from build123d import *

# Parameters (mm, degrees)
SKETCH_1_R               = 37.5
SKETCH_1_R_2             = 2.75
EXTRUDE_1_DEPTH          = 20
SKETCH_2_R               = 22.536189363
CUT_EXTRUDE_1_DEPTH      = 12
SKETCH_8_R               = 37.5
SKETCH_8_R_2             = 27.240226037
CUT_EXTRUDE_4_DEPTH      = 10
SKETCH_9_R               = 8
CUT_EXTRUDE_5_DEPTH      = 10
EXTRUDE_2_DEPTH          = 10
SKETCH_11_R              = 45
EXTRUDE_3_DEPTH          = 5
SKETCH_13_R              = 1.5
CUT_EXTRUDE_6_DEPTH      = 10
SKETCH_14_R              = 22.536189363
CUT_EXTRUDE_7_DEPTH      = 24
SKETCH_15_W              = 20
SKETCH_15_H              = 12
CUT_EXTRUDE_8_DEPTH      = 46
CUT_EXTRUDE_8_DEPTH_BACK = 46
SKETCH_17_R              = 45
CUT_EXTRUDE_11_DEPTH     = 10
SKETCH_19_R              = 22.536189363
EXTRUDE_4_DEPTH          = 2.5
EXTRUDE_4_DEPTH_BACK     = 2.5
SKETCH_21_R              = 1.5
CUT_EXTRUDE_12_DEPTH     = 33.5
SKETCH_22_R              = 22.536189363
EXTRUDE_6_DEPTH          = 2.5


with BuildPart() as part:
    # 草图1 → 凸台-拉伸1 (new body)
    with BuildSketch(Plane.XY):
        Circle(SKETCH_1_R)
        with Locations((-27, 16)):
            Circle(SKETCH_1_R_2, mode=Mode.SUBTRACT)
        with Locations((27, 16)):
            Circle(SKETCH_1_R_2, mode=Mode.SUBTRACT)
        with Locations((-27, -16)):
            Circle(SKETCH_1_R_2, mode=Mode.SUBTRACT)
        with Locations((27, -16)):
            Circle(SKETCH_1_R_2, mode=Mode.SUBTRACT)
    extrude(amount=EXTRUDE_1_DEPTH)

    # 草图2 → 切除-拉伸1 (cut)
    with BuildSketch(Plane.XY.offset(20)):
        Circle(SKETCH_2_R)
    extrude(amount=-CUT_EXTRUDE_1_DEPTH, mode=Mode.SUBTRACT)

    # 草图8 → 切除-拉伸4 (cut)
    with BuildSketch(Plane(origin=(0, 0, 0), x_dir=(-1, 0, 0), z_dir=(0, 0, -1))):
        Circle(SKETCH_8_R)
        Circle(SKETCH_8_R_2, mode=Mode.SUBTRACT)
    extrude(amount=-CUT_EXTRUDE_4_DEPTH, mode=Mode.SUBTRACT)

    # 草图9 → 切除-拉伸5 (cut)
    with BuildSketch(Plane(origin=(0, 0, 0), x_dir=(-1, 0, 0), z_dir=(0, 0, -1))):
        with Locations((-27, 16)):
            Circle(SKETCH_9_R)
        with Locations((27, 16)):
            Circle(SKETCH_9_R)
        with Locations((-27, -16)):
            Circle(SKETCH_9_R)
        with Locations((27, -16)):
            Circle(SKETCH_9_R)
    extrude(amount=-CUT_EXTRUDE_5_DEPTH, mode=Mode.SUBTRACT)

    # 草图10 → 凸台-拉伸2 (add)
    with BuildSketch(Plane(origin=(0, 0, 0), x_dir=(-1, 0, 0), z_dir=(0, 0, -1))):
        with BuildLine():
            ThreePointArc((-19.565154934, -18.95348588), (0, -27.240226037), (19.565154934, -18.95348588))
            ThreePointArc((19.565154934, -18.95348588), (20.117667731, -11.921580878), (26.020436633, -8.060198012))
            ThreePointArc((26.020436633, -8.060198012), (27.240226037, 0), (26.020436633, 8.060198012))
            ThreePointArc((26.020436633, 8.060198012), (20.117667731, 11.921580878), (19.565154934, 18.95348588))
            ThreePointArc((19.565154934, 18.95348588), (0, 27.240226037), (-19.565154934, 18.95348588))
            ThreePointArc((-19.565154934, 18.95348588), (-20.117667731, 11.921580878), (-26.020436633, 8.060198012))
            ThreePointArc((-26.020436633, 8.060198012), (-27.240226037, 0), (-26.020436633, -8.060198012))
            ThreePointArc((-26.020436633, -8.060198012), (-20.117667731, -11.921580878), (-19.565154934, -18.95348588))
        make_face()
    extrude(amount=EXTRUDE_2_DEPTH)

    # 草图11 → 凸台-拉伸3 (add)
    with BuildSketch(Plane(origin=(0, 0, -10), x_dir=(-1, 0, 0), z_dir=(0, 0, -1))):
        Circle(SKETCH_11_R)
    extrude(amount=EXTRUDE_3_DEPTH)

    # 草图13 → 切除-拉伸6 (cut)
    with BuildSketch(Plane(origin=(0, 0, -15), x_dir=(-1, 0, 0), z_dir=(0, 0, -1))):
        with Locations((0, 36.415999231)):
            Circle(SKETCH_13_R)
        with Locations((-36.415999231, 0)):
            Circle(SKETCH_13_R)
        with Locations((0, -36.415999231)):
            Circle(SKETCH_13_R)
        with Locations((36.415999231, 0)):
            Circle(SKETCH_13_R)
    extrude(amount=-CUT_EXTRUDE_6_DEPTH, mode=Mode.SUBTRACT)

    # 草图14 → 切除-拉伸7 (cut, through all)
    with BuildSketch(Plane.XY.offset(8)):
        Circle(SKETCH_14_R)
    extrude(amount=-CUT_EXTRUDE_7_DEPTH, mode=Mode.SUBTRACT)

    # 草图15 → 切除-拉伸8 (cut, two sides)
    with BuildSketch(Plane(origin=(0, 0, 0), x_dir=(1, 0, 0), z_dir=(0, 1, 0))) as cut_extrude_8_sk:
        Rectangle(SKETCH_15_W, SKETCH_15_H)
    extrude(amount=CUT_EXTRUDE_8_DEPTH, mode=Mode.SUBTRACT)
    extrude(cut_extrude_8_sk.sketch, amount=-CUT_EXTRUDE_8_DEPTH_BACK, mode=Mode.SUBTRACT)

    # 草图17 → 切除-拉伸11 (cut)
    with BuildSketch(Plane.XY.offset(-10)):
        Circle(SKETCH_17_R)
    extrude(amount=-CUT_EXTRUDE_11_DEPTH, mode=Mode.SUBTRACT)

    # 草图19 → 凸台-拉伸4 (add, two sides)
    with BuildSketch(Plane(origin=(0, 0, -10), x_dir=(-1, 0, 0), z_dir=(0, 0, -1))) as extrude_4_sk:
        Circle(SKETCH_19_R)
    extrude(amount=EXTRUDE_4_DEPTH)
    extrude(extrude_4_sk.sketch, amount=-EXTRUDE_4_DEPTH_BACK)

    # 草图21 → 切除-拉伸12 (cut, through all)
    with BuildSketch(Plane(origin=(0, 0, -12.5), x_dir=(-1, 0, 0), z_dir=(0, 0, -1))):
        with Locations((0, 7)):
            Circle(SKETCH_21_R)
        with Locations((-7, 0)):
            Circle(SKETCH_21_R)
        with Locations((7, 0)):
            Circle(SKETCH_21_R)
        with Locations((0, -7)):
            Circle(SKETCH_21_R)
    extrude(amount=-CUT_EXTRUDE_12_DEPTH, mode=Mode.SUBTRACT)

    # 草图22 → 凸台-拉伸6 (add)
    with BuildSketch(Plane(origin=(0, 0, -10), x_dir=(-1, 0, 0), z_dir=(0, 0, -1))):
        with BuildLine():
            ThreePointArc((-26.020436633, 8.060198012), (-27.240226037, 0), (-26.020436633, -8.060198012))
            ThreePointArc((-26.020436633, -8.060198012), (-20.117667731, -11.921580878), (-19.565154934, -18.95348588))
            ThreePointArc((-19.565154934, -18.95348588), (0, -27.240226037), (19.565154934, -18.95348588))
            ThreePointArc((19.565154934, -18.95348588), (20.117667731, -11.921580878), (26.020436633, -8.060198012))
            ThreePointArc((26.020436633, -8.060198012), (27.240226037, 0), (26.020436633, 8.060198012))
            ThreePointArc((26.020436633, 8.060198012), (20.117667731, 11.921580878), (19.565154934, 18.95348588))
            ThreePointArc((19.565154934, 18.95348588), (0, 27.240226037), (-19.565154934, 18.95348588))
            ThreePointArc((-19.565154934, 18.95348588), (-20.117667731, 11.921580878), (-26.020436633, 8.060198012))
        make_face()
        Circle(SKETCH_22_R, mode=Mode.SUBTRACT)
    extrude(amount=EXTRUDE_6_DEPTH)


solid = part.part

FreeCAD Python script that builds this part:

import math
import FreeCAD as App
import Part
import Sketcher
from FreeCAD import Vector
Q = App.Units.Quantity

doc = App.newDocument("Part")
body = doc.addObject("PartDesign::Body", "Body")

sketch1 = body.newObject("Sketcher::SketchObject", "Sketch")
sketch1.AttachmentSupport = (doc.getObject("XY_Plane"), [""])
sketch1.MapMode = "FlatFace"
sketch1.addGeometry(Part.Circle(Vector(0, 0, 0), Vector(0, 0, 1), 37.5), False)
sketch1.addGeometry(Part.Circle(Vector(-27, -16, 0), Vector(0, 0, 1), 2.8), False)
sketch1.addGeometry(Part.Circle(Vector(27, -16, 0), Vector(0, 0, 1), 2.8), False)
sketch1.addGeometry(Part.Circle(Vector(-27, 16, 0), Vector(0, 0, 1), 2.8), False)
sketch1.addGeometry(Part.Circle(Vector(27, 16, 0), Vector(0, 0, 1), 2.8), False)
sketch1.addConstraint(Sketcher.Constraint("Coincident", 0, 3, -1, 1))
sketch1.addConstraint(Sketcher.Constraint("Equal", 1, 2))
sketch1.addConstraint(Sketcher.Constraint("Equal", 2, 3))
sketch1.addConstraint(Sketcher.Constraint("Equal", 3, 4))
sketch1.addConstraint(Sketcher.Constraint("Symmetric", 2, 3, 3, 3, -1, 1))
sketch1.addConstraint(Sketcher.Constraint("Symmetric", 1, 3, 4, 3, -1, 1))
sketch1.addConstraint(Sketcher.Constraint("Symmetric", 1, 3, 2, 3, -2))
sketch1.addConstraint(Sketcher.Constraint("Diameter", 0, Q("75 mm")))
sketch1.addConstraint(Sketcher.Constraint("Diameter", 1, Q("5.5 mm")))
sketch1.addConstraint(Sketcher.Constraint("DistanceX", 1, 3, -1, 1, Q("27 mm")))
sketch1.addConstraint(Sketcher.Constraint("DistanceY", 1, 3, -1, 1, Q("16 mm")))
pad1 = body.newObject("PartDesign::Pad", "Pad")
pad1.Profile = sketch1
pad1.Length = 20

sketch2 = body.newObject("Sketcher::SketchObject", "Sketch001")
sketch2.AttachmentSupport = (doc.getObject("XY_Plane"), [""])
sketch2.MapMode = "FlatFace"
sketch2.AttachmentOffset = App.Placement(Vector(0, 0, 20), App.Rotation())
sketch2.addGeometry(Part.Circle(Vector(0, 0, 0), Vector(0, 0, 1), 23), False)
sketch2.addConstraint(Sketcher.Constraint("Coincident", 0, 3, -1, 1))
sketch2.addConstraint(Sketcher.Constraint("Diameter", 0, Q("45.072379 mm")))
pocket1 = body.newObject("PartDesign::Pocket", "Pocket")
pocket1.Profile = sketch2
pocket1.Length = 12

sketch3 = body.newObject("Sketcher::SketchObject", "Sketch002")
sketch3.AttachmentSupport = (doc.getObject("XY_Plane"), [""])
sketch3.MapMode = "FlatFace"
sketch3.addGeometry(Part.Circle(Vector(0, 0, 0), Vector(0, 0, 1), 38), False)
sketch3.addGeometry(Part.Circle(Vector(0, 0, 0), Vector(0, 0, 1), 27), False)
sketch3.addConstraint(Sketcher.Constraint("Coincident", 0, 3, -1, 1))
sketch3.addConstraint(Sketcher.Constraint("Coincident", 1, 3, -1, 1))
sketch3.addConstraint(Sketcher.Constraint("Diameter", 0, Q("75 mm")))
sketch3.addConstraint(Sketcher.Constraint("Diameter", 1, Q("54.480452 mm")))
pocket2 = body.newObject("PartDesign::Pocket", "Pocket001")
pocket2.Profile = sketch3
pocket2.Length = 10
pocket2.Reversed = True

sketch4 = body.newObject("Sketcher::SketchObject", "Sketch003")
sketch4.AttachmentSupport = (doc.getObject("XY_Plane"), [""])
sketch4.MapMode = "FlatFace"
sketch4.addGeometry(Part.Circle(Vector(27, 16, 0), Vector(0, 0, 1), 8), False)
sketch4.addGeometry(Part.Circle(Vector(-27, 16, 0), Vector(0, 0, 1), 8), False)
sketch4.addGeometry(Part.Circle(Vector(27, -16, 0), Vector(0, 0, 1), 8), False)
sketch4.addGeometry(Part.Circle(Vector(-27, -16, 0), Vector(0, 0, 1), 8), False)
sketch4.addConstraint(Sketcher.Constraint("Equal", 0, 1))
sketch4.addConstraint(Sketcher.Constraint("Equal", 1, 2))
sketch4.addConstraint(Sketcher.Constraint("Equal", 2, 3))
sketch4.addConstraint(Sketcher.Constraint("Symmetric", 1, 3, 2, 3, -1, 1))
sketch4.addConstraint(Sketcher.Constraint("Symmetric", 0, 3, 3, 3, -1, 1))
sketch4.addConstraint(Sketcher.Constraint("Symmetric", 0, 3, 1, 3, -2))
sketch4.addConstraint(Sketcher.Constraint("Diameter", 0, Q("16 mm")))
sketch4.addConstraint(Sketcher.Constraint("DistanceX", -1, 1, 0, 3, Q("27 mm")))
sketch4.addConstraint(Sketcher.Constraint("DistanceY", -1, 1, 0, 3, Q("16 mm")))
pocket3 = body.newObject("PartDesign::Pocket", "Pocket002")
pocket3.Profile = sketch4
pocket3.Length = 10
pocket3.Reversed = True

sketch5 = body.newObject("Sketcher::SketchObject", "Sketch004")
sketch5.AttachmentSupport = (doc.getObject("XY_Plane"), [""])
sketch5.MapMode = "FlatFace"
sketch5.addGeometry(Part.ArcOfCircle(Part.Circle(Vector(0, 0, 0), Vector(0, 0, 1), 27), math.radians(-136), math.radians(-44)), False)
sketch5.addGeometry(Part.ArcOfCircle(Part.Circle(Vector(-27, -16, 0), Vector(0, 0, 1), 8), math.radians(-22), math.radians(83)), False)
sketch5.addGeometry(Part.ArcOfCircle(Part.Circle(Vector(0, 0, 0), Vector(0, 0, 1), 27), math.radians(163), math.radians(197)), False)
sketch5.addGeometry(Part.ArcOfCircle(Part.Circle(Vector(-27, 16, 0), Vector(0, 0, 1), 8), math.radians(-83), math.radians(22)), False)
sketch5.addGeometry(Part.ArcOfCircle(Part.Circle(Vector(0, 0, 0), Vector(0, 0, 1), 27), math.radians(44), math.radians(136)), False)
sketch5.addGeometry(Part.ArcOfCircle(Part.Circle(Vector(27, 16, 0), Vector(0, 0, 1), 8), math.radians(158), math.radians(263)), False)
sketch5.addGeometry(Part.ArcOfCircle(Part.Circle(Vector(0, 0, 0), Vector(0, 0, 1), 27), math.radians(-17), math.radians(17)), False)
sketch5.addGeometry(Part.ArcOfCircle(Part.Circle(Vector(27, -16, 0), Vector(0, 0, 1), 8), math.radians(97), math.radians(202)), False)
sketch5.addConstraint(Sketcher.Constraint("Coincident", 0, 1, 1, 1))
sketch5.addConstraint(Sketcher.Constraint("Coincident", 1, 2, 2, 2))
sketch5.addConstraint(Sketcher.Constraint("Coincident", 2, 1, 3, 1))
sketch5.addConstraint(Sketcher.Constraint("Coincident", 3, 2, 4, 2))
sketch5.addConstraint(Sketcher.Constraint("Coincident", 4, 1, 5, 1))
sketch5.addConstraint(Sketcher.Constraint("Coincident", 5, 2, 6, 2))
sketch5.addConstraint(Sketcher.Constraint("Coincident", 6, 1, 7, 1))
sketch5.addConstraint(Sketcher.Constraint("Coincident", 7, 2, 0, 2))
sketch5.addConstraint(Sketcher.Constraint("Coincident", 0, 3, -1, 1))
sketch5.addConstraint(Sketcher.Constraint("Coincident", 2, 3, -1, 1))
sketch5.addConstraint(Sketcher.Constraint("Coincident", 4, 3, -1, 1))
sketch5.addConstraint(Sketcher.Constraint("Coincident", 6, 3, -1, 1))
sketch5.addConstraint(Sketcher.Constraint("Equal", 0, 2))
sketch5.addConstraint(Sketcher.Constraint("Equal", 1, 3))
sketch5.addConstraint(Sketcher.Constraint("Equal", 2, 4))
sketch5.addConstraint(Sketcher.Constraint("Equal", 3, 5))
sketch5.addConstraint(Sketcher.Constraint("Equal", 4, 6))
sketch5.addConstraint(Sketcher.Constraint("Equal", 5, 7))
sketch5.addConstraint(Sketcher.Constraint("Symmetric", 1, 3, 5, 3, -1, 1))
sketch5.addConstraint(Sketcher.Constraint("Symmetric", 3, 3, 7, 3, -1, 1))
sketch5.addConstraint(Sketcher.Constraint("Symmetric", 3, 3, 5, 3, -2))
sketch5.addConstraint(Sketcher.Constraint("Radius", 1, Q("8 mm")))
sketch5.addConstraint(Sketcher.Constraint("DistanceX", 1, 3, -1, 1, Q("27 mm")))
sketch5.addConstraint(Sketcher.Constraint("DistanceY", 1, 3, -1, 1, Q("16 mm")))
sketch5.addConstraint(Sketcher.Constraint("Radius", 0, Q("27.240226 mm")))
pad2 = body.newObject("PartDesign::Pad", "Pad001")
pad2.Profile = sketch5
pad2.Length = 10
pad2.Reversed = True

sketch6 = body.newObject("Sketcher::SketchObject", "Sketch005")
sketch6.AttachmentSupport = (doc.getObject("XY_Plane"), [""])
sketch6.MapMode = "FlatFace"
sketch6.AttachmentOffset = App.Placement(Vector(0, 0, -10), App.Rotation())
sketch6.addGeometry(Part.Circle(Vector(0, 0, 0), Vector(0, 0, 1), 45), False)
sketch6.addConstraint(Sketcher.Constraint("Coincident", 0, 3, -1, 1))
sketch6.addConstraint(Sketcher.Constraint("Diameter", 0, Q("90 mm")))
pad3 = body.newObject("PartDesign::Pad", "Pad002")
pad3.Profile = sketch6
pad3.Length = 5
pad3.Reversed = True

sketch7 = body.newObject("Sketcher::SketchObject", "Sketch006")
sketch7.AttachmentSupport = (doc.getObject("XY_Plane"), [""])
sketch7.MapMode = "FlatFace"
sketch7.AttachmentOffset = App.Placement(Vector(0, 0, -15), App.Rotation())
sketch7.addGeometry(Part.Circle(Vector(0, 36.4, 0), Vector(0, 0, 1), 1.5), False)
sketch7.addGeometry(Part.Circle(Vector(36.4, 0, 0), Vector(0, 0, 1), 1.5), False)
sketch7.addGeometry(Part.Circle(Vector(0, -36.4, 0), Vector(0, 0, 1), 1.5), False)
sketch7.addGeometry(Part.Circle(Vector(-36.4, 0, 0), Vector(0, 0, 1), 1.5), False)
sketch7.addConstraint(Sketcher.Constraint("Equal", 0, 1))
sketch7.addConstraint(Sketcher.Constraint("Equal", 1, 2))
sketch7.addConstraint(Sketcher.Constraint("Equal", 2, 3))
sketch7.addConstraint(Sketcher.Constraint("Symmetric", 0, 3, 2, 3, -1, 1))
sketch7.addConstraint(Sketcher.Constraint("Symmetric", 1, 3, 3, 3, -1, 1))
sketch7.addConstraint(Sketcher.Constraint("PointOnObject", 0, 3, -2))
sketch7.addConstraint(Sketcher.Constraint("PointOnObject", 1, 3, -1))
sketch7.addConstraint(Sketcher.Constraint("Diameter", 0, Q("3 mm")))
sketch7.addConstraint(Sketcher.Constraint("DistanceY", -1, 1, 0, 3, Q("36.415999 mm")))
sketch7.addConstraint(Sketcher.Constraint("DistanceX", -1, 1, 1, 3, Q("36.415999 mm")))
pocket4 = body.newObject("PartDesign::Pocket", "Pocket003")
pocket4.Profile = sketch7
pocket4.Length = 10
pocket4.Reversed = True

sketch8 = body.newObject("Sketcher::SketchObject", "Sketch007")
sketch8.AttachmentSupport = (doc.getObject("XY_Plane"), [""])
sketch8.MapMode = "FlatFace"
sketch8.AttachmentOffset = App.Placement(Vector(0, 0, 8), App.Rotation())
sketch8.addGeometry(Part.Circle(Vector(0, 0, 0), Vector(0, 0, 1), 23), False)
sketch8.addConstraint(Sketcher.Constraint("Coincident", 0, 3, -1, 1))
sketch8.addConstraint(Sketcher.Constraint("Diameter", 0, Q("45.072379 mm")))
pocket5 = body.newObject("PartDesign::Pocket", "Pocket004")
pocket5.Profile = sketch8
pocket5.Type = "ThroughAll"

sketch9 = body.newObject("Sketcher::SketchObject", "Sketch008")
sketch9.AttachmentSupport = (doc.getObject("XZ_Plane"), [""])
sketch9.MapMode = "FlatFace"
sketch9.addGeometry(Part.LineSegment(Vector(-10, -6, 0), Vector(-10, 6, 0)), False)
sketch9.addGeometry(Part.LineSegment(Vector(-10, 6, 0), Vector(10, 6, 0)), False)
sketch9.addGeometry(Part.LineSegment(Vector(10, 6, 0), Vector(10, -6, 0)), False)
sketch9.addGeometry(Part.LineSegment(Vector(10, -6, 0), Vector(-10, -6, 0)), False)
sketch9.addConstraint(Sketcher.Constraint("Coincident", 0, 2, 1, 1))
sketch9.addConstraint(Sketcher.Constraint("Coincident", 1, 2, 2, 1))
sketch9.addConstraint(Sketcher.Constraint("Coincident", 2, 2, 3, 1))
sketch9.addConstraint(Sketcher.Constraint("Coincident", 3, 2, 0, 1))
sketch9.addConstraint(Sketcher.Constraint("Vertical", 0))
sketch9.addConstraint(Sketcher.Constraint("Horizontal", 1))
sketch9.addConstraint(Sketcher.Constraint("Vertical", 2))
sketch9.addConstraint(Sketcher.Constraint("Horizontal", 3))
sketch9.addConstraint(Sketcher.Constraint("Symmetric", 0, 2, 2, 2, -1, 1))
sketch9.addConstraint(Sketcher.Constraint("DistanceX", 1, 1, 1, 2, Q("20 mm")))
sketch9.addConstraint(Sketcher.Constraint("DistanceY", 0, 1, 0, 2, Q("12 mm")))
pocket6 = body.newObject("PartDesign::Pocket", "Pocket005")
pocket6.Profile = sketch9
pocket6.Type = "ThroughAll"
pocket6.Midplane = True

sketch10 = body.newObject("Sketcher::SketchObject", "Sketch009")
sketch10.AttachmentSupport = (doc.getObject("XY_Plane"), [""])
sketch10.MapMode = "FlatFace"
sketch10.AttachmentOffset = App.Placement(Vector(0, 0, -10), App.Rotation())
sketch10.addGeometry(Part.Circle(Vector(0, 0, 0), Vector(0, 0, 1), 45), False)
sketch10.addConstraint(Sketcher.Constraint("Coincident", 0, 3, -1, 1))
sketch10.addConstraint(Sketcher.Constraint("Diameter", 0, Q("90 mm")))
pocket7 = body.newObject("PartDesign::Pocket", "Pocket006")
pocket7.Profile = sketch10
pocket7.Length = 10

sketch11 = body.newObject("Sketcher::SketchObject", "Sketch010")
sketch11.AttachmentSupport = (doc.getObject("XY_Plane"), [""])
sketch11.MapMode = "FlatFace"
sketch11.AttachmentOffset = App.Placement(Vector(0, 0, -10), App.Rotation())
sketch11.addGeometry(Part.Circle(Vector(0, 0, 0), Vector(0, 0, 1), 23), False)
sketch11.addConstraint(Sketcher.Constraint("Coincident", 0, 3, -1, 1))
sketch11.addConstraint(Sketcher.Constraint("Diameter", 0, Q("45.072379 mm")))
pad4 = body.newObject("PartDesign::Pad", "Pad003")
pad4.Profile = sketch11
pad4.Type = "TwoLengths"
pad4.Length = 2.5
pad4.Length2 = 2.5
pad4.Reversed = True

sketch12 = body.newObject("Sketcher::SketchObject", "Sketch011")
sketch12.AttachmentSupport = (doc.getObject("XY_Plane"), [""])
sketch12.MapMode = "FlatFace"
sketch12.AttachmentOffset = App.Placement(Vector(0, 0, -12.5), App.Rotation())
sketch12.addGeometry(Part.Circle(Vector(0, 7, 0), Vector(0, 0, 1), 1.5), False)
sketch12.addGeometry(Part.Circle(Vector(7, 0, 0), Vector(0, 0, 1), 1.5), False)
sketch12.addGeometry(Part.Circle(Vector(-7, 0, 0), Vector(0, 0, 1), 1.5), False)
sketch12.addGeometry(Part.Circle(Vector(0, -7, 0), Vector(0, 0, 1), 1.5), False)
sketch12.addConstraint(Sketcher.Constraint("Equal", 0, 1))
sketch12.addConstraint(Sketcher.Constraint("Equal", 1, 2))
sketch12.addConstraint(Sketcher.Constraint("Equal", 2, 3))
sketch12.addConstraint(Sketcher.Constraint("Symmetric", 1, 3, 2, 3, -1, 1))
sketch12.addConstraint(Sketcher.Constraint("Symmetric", 0, 3, 3, 3, -1, 1))
sketch12.addConstraint(Sketcher.Constraint("PointOnObject", 0, 3, -2))
sketch12.addConstraint(Sketcher.Constraint("PointOnObject", 1, 3, -1))
sketch12.addConstraint(Sketcher.Constraint("Diameter", 0, Q("3 mm")))
sketch12.addConstraint(Sketcher.Constraint("DistanceY", -1, 1, 0, 3, Q("7 mm")))
sketch12.addConstraint(Sketcher.Constraint("DistanceX", -1, 1, 1, 3, Q("7 mm")))
pocket8 = body.newObject("PartDesign::Pocket", "Pocket007")
pocket8.Profile = sketch12
pocket8.Type = "ThroughAll"
pocket8.Reversed = True

sketch13 = body.newObject("Sketcher::SketchObject", "Sketch012")
sketch13.AttachmentSupport = (doc.getObject("XY_Plane"), [""])
sketch13.MapMode = "FlatFace"
sketch13.AttachmentOffset = App.Placement(Vector(0, 0, -10), App.Rotation())
sketch13.addGeometry(Part.ArcOfCircle(Part.Circle(Vector(0, 0, 0), Vector(0, 0, 1), 27), math.radians(-17), math.radians(17)), False)
sketch13.addGeometry(Part.ArcOfCircle(Part.Circle(Vector(27, -16, 0), Vector(0, 0, 1), 8), math.radians(97), math.radians(202)), False)
sketch13.addGeometry(Part.ArcOfCircle(Part.Circle(Vector(0, 0, 0), Vector(0, 0, 1), 27), math.radians(-136), math.radians(-44)), False)
sketch13.addGeometry(Part.ArcOfCircle(Part.Circle(Vector(-27, -16, 0), Vector(0, 0, 1), 8), math.radians(-22), math.radians(83)), False)
sketch13.addGeometry(Part.ArcOfCircle(Part.Circle(Vector(0, 0, 0), Vector(0, 0, 1), 27), math.radians(163), math.radians(197)), False)
sketch13.addGeometry(Part.ArcOfCircle(Part.Circle(Vector(-27, 16, 0), Vector(0, 0, 1), 8), math.radians(-83), math.radians(22)), False)
sketch13.addGeometry(Part.ArcOfCircle(Part.Circle(Vector(0, 0, 0), Vector(0, 0, 1), 27), math.radians(44), math.radians(136)), False)
sketch13.addGeometry(Part.ArcOfCircle(Part.Circle(Vector(27, 16, 0), Vector(0, 0, 1), 8), math.radians(158), math.radians(263)), False)
sketch13.addGeometry(Part.Circle(Vector(0, 0, 0), Vector(0, 0, 1), 23), False)
sketch13.addConstraint(Sketcher.Constraint("Coincident", 0, 1, 1, 1))
sketch13.addConstraint(Sketcher.Constraint("Coincident", 1, 2, 2, 2))
sketch13.addConstraint(Sketcher.Constraint("Coincident", 2, 1, 3, 1))
sketch13.addConstraint(Sketcher.Constraint("Coincident", 3, 2, 4, 2))
sketch13.addConstraint(Sketcher.Constraint("Coincident", 4, 1, 5, 1))
sketch13.addConstraint(Sketcher.Constraint("Coincident", 5, 2, 6, 2))
sketch13.addConstraint(Sketcher.Constraint("Coincident", 6, 1, 7, 1))
sketch13.addConstraint(Sketcher.Constraint("Coincident", 7, 2, 0, 2))
sketch13.addConstraint(Sketcher.Constraint("Coincident", 0, 3, -1, 1))
sketch13.addConstraint(Sketcher.Constraint("Coincident", 2, 3, -1, 1))
sketch13.addConstraint(Sketcher.Constraint("Coincident", 4, 3, -1, 1))
sketch13.addConstraint(Sketcher.Constraint("Coincident", 6, 3, -1, 1))
sketch13.addConstraint(Sketcher.Constraint("Coincident", 8, 3, -1, 1))
sketch13.addConstraint(Sketcher.Constraint("Equal", 0, 2))
sketch13.addConstraint(Sketcher.Constraint("Equal", 1, 3))
sketch13.addConstraint(Sketcher.Constraint("Equal", 2, 4))
sketch13.addConstraint(Sketcher.Constraint("Equal", 3, 5))
sketch13.addConstraint(Sketcher.Constraint("Equal", 4, 6))
sketch13.addConstraint(Sketcher.Constraint("Equal", 5, 7))
sketch13.addConstraint(Sketcher.Constraint("Symmetric", 1, 3, 5, 3, -1, 1))
sketch13.addConstraint(Sketcher.Constraint("Symmetric", 3, 3, 7, 3, -1, 1))
sketch13.addConstraint(Sketcher.Constraint("Symmetric", 1, 3, 3, 3, -2))
sketch13.addConstraint(Sketcher.Constraint("Radius", 1, Q("8 mm")))
sketch13.addConstraint(Sketcher.Constraint("DistanceX", -1, 1, 1, 3, Q("27 mm")))
sketch13.addConstraint(Sketcher.Constraint("DistanceY", 1, 3, -1, 1, Q("16 mm")))
sketch13.addConstraint(Sketcher.Constraint("Diameter", 8, Q("45.072379 mm")))
sketch13.addConstraint(Sketcher.Constraint("Radius", 0, Q("27.240226 mm")))
pad5 = body.newObject("PartDesign::Pad", "Pad004")
pad5.Profile = sketch13
pad5.Length = 2.5
pad5.Reversed = True

doc.recompute()
